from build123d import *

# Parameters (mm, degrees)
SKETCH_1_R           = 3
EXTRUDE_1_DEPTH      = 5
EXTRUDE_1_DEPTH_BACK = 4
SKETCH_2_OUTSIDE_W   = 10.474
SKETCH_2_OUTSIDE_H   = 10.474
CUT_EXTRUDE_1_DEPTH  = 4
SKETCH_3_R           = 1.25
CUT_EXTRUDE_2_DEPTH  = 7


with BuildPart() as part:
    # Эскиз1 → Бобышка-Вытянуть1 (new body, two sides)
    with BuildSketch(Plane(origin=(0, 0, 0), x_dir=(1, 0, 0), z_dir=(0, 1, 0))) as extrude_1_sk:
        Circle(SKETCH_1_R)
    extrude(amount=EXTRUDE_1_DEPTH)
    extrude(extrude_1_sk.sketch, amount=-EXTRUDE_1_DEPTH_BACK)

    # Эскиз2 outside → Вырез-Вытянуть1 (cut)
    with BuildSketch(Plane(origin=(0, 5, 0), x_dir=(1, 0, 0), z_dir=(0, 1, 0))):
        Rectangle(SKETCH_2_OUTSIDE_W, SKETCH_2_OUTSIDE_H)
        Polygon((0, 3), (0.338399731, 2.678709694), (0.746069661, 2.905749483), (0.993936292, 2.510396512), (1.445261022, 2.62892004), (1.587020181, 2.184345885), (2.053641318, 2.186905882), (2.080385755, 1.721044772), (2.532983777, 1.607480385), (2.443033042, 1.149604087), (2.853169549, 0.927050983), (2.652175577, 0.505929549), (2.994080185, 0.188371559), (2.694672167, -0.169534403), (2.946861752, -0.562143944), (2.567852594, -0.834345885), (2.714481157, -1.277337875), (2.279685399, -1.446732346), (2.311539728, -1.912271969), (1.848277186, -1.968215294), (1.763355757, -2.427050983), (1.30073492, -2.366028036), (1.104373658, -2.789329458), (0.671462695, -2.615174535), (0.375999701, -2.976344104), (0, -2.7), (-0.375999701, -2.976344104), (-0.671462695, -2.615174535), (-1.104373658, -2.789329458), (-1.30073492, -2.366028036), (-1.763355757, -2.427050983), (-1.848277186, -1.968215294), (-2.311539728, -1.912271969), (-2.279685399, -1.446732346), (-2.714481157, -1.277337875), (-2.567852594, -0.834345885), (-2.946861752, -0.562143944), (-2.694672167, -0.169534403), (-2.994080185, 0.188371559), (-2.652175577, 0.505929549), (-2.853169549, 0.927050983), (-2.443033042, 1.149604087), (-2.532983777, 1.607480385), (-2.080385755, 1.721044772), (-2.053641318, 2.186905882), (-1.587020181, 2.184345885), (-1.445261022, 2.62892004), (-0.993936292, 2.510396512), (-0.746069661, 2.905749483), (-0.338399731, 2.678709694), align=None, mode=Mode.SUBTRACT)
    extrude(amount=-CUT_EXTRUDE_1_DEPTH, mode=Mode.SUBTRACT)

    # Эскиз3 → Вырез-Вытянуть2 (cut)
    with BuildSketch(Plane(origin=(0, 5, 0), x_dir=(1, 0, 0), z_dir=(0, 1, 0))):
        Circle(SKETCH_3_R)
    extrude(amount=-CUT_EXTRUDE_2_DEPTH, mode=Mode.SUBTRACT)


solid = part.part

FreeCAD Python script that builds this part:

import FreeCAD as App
import Part
import Sketcher

doc = App.newDocument("Part")
body = doc.addObject("PartDesign::Body", "Body")

sketch1 = body.newObject("Sketcher::SketchObject", "Sketch")
sketch1.AttachmentSupport = (doc.getObject("XZ_Plane"), [""])
sketch1.MapMode = "FlatFace"
sketch1.addGeometry(Part.Circle(App.Vector(0, 0, 0), App.Vector(0, 0, 1), 3), False)
sketch1.addConstraint(Sketcher.Constraint("Coincident", 0, 3, -1, 1))
sketch1.addConstraint(Sketcher.Constraint("Diameter", 0, 6.0))
pad1 = body.newObject("PartDesign::Pad", "Pad")
pad1.Profile = sketch1
pad1.Type = "TwoLengths"
pad1.Length = 5
pad1.Length2 = 4
pad1.Reversed = True

sketch2 = body.newObject("Sketcher::SketchObject", "Sketch001")
sketch2.AttachmentSupport = (doc.getObject("XZ_Plane"), [""])
sketch2.MapMode = "FlatFace"
sketch2.AttachmentOffset = App.Placement(App.Vector(0, 0, -5), App.Rotation())
sketch2.addGeometry(Part.LineSegment(App.Vector(-5.24, -5.24, 0), App.Vector(-5.24, 5.24, 0)), False)
sketch2.addGeometry(Part.LineSegment(App.Vector(-5.24, 5.24, 0), App.Vector(5.24, 5.24, 0)), False)
sketch2.addGeometry(Part.LineSegment(App.Vector(5.24, 5.24, 0), App.Vector(5.24, -5.24, 0)), False)
sketch2.addGeometry(Part.LineSegment(App.Vector(5.24, -5.24, 0), App.Vector(-5.24, -5.24, 0)), False)
sketch2.addGeometry(Part.LineSegment(App.Vector(-0.34, -2.68, 0), App.Vector(0, -3, 0)), False)
sketch2.addGeometry(Part.LineSegment(App.Vector(0, -3, 0), App.Vector(0.34, -2.68, 0)), False)
sketch2.addGeometry(Part.LineSegment(App.Vector(0.34, -2.68, 0), App.Vector(0.75, -2.91, 0)), False)
sketch2.addGeometry(Part.LineSegment(App.Vector(0.75, -2.91, 0), App.Vector(0.99, -2.51, 0)), False)
sketch2.addGeometry(Part.LineSegment(App.Vector(0.99, -2.51, 0), App.Vector(1.45, -2.63, 0)), False)
sketch2.addGeometry(Part.LineSegment(App.Vector(1.45, -2.63, 0), App.Vector(1.59, -2.18, 0)), False)
sketch2.addGeometry(Part.LineSegment(App.Vector(1.59, -2.18, 0), App.Vector(2.05, -2.19, 0)), False)
sketch2.addGeometry(Part.LineSegment(App.Vector(2.05, -2.19, 0), App.Vector(2.08, -1.72, 0)), False)
sketch2.addGeometry(Part.LineSegment(App.Vector(2.08, -1.72, 0), App.Vector(2.53, -1.61, 0)), False)
sketch2.addGeometry(Part.LineSegment(App.Vector(2.53, -1.61, 0), App.Vector(2.44, -1.15, 0)), False)
sketch2.addGeometry(Part.LineSegment(App.Vector(2.44, -1.15, 0), App.Vector(2.85, -0.93, 0)), False)
sketch2.addGeometry(Part.LineSegment(App.Vector(2.85, -0.93, 0), App.Vector(2.65, -0.51, 0)), False)
sketch2.addGeometry(Part.LineSegment(App.Vector(2.65, -0.51, 0), App.Vector(2.99, -0.19, 0)), False)
sketch2.addGeometry(Part.LineSegment(App.Vector(2.99, -0.19, 0), App.Vector(2.69, 0.17, 0)), False)
sketch2.addGeometry(Part.LineSegment(App.Vector(2.69, 0.17, 0), App.Vector(2.95, 0.56, 0)), False)
sketch2.addGeometry(Part.LineSegment(App.Vector(2.95, 0.56, 0), App.Vector(2.57, 0.83, 0)), False)
sketch2.addGeometry(Part.LineSegment(App.Vector(2.57, 0.83, 0), App.Vector(2.71, 1.28, 0)), False)
sketch2.addGeometry(Part.LineSegment(App.Vector(2.71, 1.28, 0), App.Vector(2.28, 1.45, 0)), False)
sketch2.addGeometry(Part.LineSegment(App.Vector(2.28, 1.45, 0), App.Vector(2.31, 1.91, 0)), False)
sketch2.addGeometry(Part.LineSegment(App.Vector(2.31, 1.91, 0), App.Vector(1.85, 1.97, 0)), False)
sketch2.addGeometry(Part.LineSegment(App.Vector(1.85, 1.97, 0), App.Vector(1.76, 2.43, 0)), False)
sketch2.addGeometry(Part.LineSegment(App.Vector(1.76, 2.43, 0), App.Vector(1.3, 2.37, 0)), False)
sketch2.addGeometry(Part.LineSegment(App.Vector(1.3, 2.37, 0), App.Vector(1.1, 2.79, 0)), False)
sketch2.addGeometry(Part.LineSegment(App.Vector(1.1, 2.79, 0), App.Vector(0.67, 2.62, 0)), False)
sketch2.addGeometry(Part.LineSegment(App.Vector(0.67, 2.62, 0), App.Vector(0.38, 2.98, 0)), False)
sketch2.addGeometry(Part.LineSegment(App.Vector(0.38, 2.98, 0), App.Vector(0, 2.7, 0)), False)
sketch2.addGeometry(Part.LineSegment(App.Vector(0, 2.7, 0), App.Vector(-0.38, 2.98, 0)), False)
sketch2.addGeometry(Part.LineSegment(App.Vector(-0.38, 2.98, 0), App.Vector(-0.67, 2.62, 0)), False)
sketch2.addGeometry(Part.LineSegment(App.Vector(-0.67, 2.62, 0), App.Vector(-1.1, 2.79, 0)), False)
sketch2.addGeometry(Part.LineSegment(App.Vector(-1.1, 2.79, 0), App.Vector(-1.3, 2.37, 0)), False)
sketch2.addGeometry(Part.LineSegment(App.Vector(-1.3, 2.37, 0), App.Vector(-1.76, 2.43, 0)), False)
sketch2.addGeometry(Part.LineSegment(App.Vector(-1.76, 2.43, 0), App.Vector(-1.85, 1.97, 0)), False)
sketch2.addGeometry(Part.LineSegment(App.Vector(-1.85, 1.97, 0), App.Vector(-2.31, 1.91, 0)), False)
sketch2.addGeometry(Part.LineSegment(App.Vector(-2.31, 1.91, 0), App.Vector(-2.28, 1.45, 0)), False)
sketch2.addGeometry(Part.LineSegment(App.Vector(-2.28, 1.45, 0), App.Vector(-2.71, 1.28, 0)), False)
sketch2.addGeometry(Part.LineSegment(App.Vector(-2.71, 1.28, 0), App.Vector(-2.57, 0.83, 0)), False)
sketch2.addGeometry(Part.LineSegment(App.Vector(-2.57, 0.83, 0), App.Vector(-2.95, 0.56, 0)), False)
sketch2.addGeometry(Part.LineSegment(App.Vector(-2.95, 0.56, 0), App.Vector(-2.69, 0.17, 0)), False)
sketch2.addGeometry(Part.LineSegment(App.Vector(-2.69, 0.17, 0), App.Vector(-2.99, -0.19, 0)), False)
sketch2.addGeometry(Part.LineSegment(App.Vector(-2.99, -0.19, 0), App.Vector(-2.65, -0.51, 0)), False)
sketch2.addGeometry(Part.LineSegment(App.Vector(-2.65, -0.51, 0), App.Vector(-2.85, -0.93, 0)), False)
sketch2.addGeometry(Part.LineSegment(App.Vector(-2.85, -0.93, 0), App.Vector(-2.44, -1.15, 0)), False)
sketch2.addGeometry(Part.LineSegment(App.Vector(-2.44, -1.15, 0), App.Vector(-2.53, -1.61, 0)), False)
sketch2.addGeometry(Part.LineSegment(App.Vector(-2.53, -1.61, 0), App.Vector(-2.08, -1.72, 0)), False)
sketch2.addGeometry(Part.LineSegment(App.Vector(-2.08, -1.72, 0), App.Vector(-2.05, -2.19, 0)), False)
sketch2.addGeometry(Part.LineSegment(App.Vector(-2.05, -2.19, 0), App.Vector(-1.59, -2.18, 0)), False)
sketch2.addGeometry(Part.LineSegment(App.Vector(-1.59, -2.18, 0), App.Vector(-1.45, -2.63, 0)), False)
sketch2.addGeometry(Part.LineSegment(App.Vector(-1.45, -2.63, 0), App.Vector(-0.99, -2.51, 0)), False)
sketch2.addGeometry(Part.LineSegment(App.Vector(-0.99, -2.51, 0), App.Vector(-0.75, -2.91, 0)), False)
sketch2.addGeometry(Part.LineSegment(App.Vector(-0.75, -2.91, 0), App.Vector(-0.34, -2.68, 0)), False)
sketch2.addConstraint(Sketcher.Constraint("Coincident", 0, 2, 1, 1))
sketch2.addConstraint(Sketcher.Constraint("Coincident", 1, 2, 2, 1))
sketch2.addConstraint(Sketcher.Constraint("Coincident", 2, 2, 3, 1))
sketch2.addConstraint(Sketcher.Constraint("Coincident", 3, 2, 0, 1))
sketch2.addConstraint(Sketcher.Constraint("Coincident", 4, 2, 5, 1))
sketch2.addConstraint(Sketcher.Constraint("Coincident", 5, 2, 6, 1))
sketch2.addConstraint(Sketcher.Constraint("Coincident", 6, 2, 7, 1))
sketch2.addConstraint(Sketcher.Constraint("Coincident", 7, 2, 8, 1))
sketch2.addConstraint(Sketcher.Constraint("Coincident", 8, 2, 9, 1))
sketch2.addConstraint(Sketcher.Constraint("Coincident", 9, 2, 10, 1))
sketch2.addConstraint(Sketcher.Constraint("Coincident", 10, 2, 11, 1))
sketch2.addConstraint(Sketcher.Constraint("Coincident", 11, 2, 12, 1))
sketch2.addConstraint(Sketcher.Constraint("Coincident", 12, 2, 13, 1))
sketch2.addConstraint(Sketcher.Constraint("Coincident", 13, 2, 14, 1))
sketch2.addConstraint(Sketcher.Constraint("Coincident", 14, 2, 15, 1))
sketch2.addConstraint(Sketcher.Constraint("Coincident", 15, 2, 16, 1))
sketch2.addConstraint(Sketcher.Constraint("Coincident", 16, 2, 17, 1))
sketch2.addConstraint(Sketcher.Constraint("Coincident", 17, 2, 18, 1))
sketch2.addConstraint(Sketcher.Constraint("Coincident", 18, 2, 19, 1))
sketch2.addConstraint(Sketcher.Constraint("Coincident", 19, 2, 20, 1))
sketch2.addConstraint(Sketcher.Constraint("Coincident", 20, 2, 21, 1))
sketch2.addConstraint(Sketcher.Constraint("Coincident", 21, 2, 22, 1))
sketch2.addConstraint(Sketcher.Constraint("Coincident", 22, 2, 23, 1))
sketch2.addConstraint(Sketcher.Constraint("Coincident", 23, 2, 24, 1))
sketch2.addConstraint(Sketcher.Constraint("Coincident", 24, 2, 25, 1))
sketch2.addConstraint(Sketcher.Constraint("Coincident", 25, 2, 26, 1))
sketch2.addConstraint(Sketcher.Constraint("Coincident", 26, 2, 27, 1))
sketch2.addConstraint(Sketcher.Constraint("Coincident", 27, 2, 28, 1))
sketch2.addConstraint(Sketcher.Constraint("Coincident", 28, 2, 29, 1))
sketch2.addConstraint(Sketcher.Constraint("Coincident", 29, 2, 30, 1))
sketch2.addConstraint(Sketcher.Constraint("Coincident", 30, 2, 31, 1))
sketch2.addConstraint(Sketcher.Constraint("Coincident", 31, 2, 32, 1))
sketch2.addConstraint(Sketcher.Constraint("Coincident", 32, 2, 33, 1))
sketch2.addConstraint(Sketcher.Constraint("Coincident", 33, 2, 34, 1))
sketch2.addConstraint(Sketcher.Constraint("Coincident", 34, 2, 35, 1))
sketch2.addConstraint(Sketcher.Constraint("Coincident", 35, 2, 36, 1))
sketch2.addConstraint(Sketcher.Constraint("Coincident", 36, 2, 37, 1))
sketch2.addConstraint(Sketcher.Constraint("Coincident", 37, 2, 38, 1))
sketch2.addConstraint(Sketcher.Constraint("Coincident", 38, 2, 39, 1))
sketch2.addConstraint(Sketcher.Constraint("Coincident", 39, 2, 40, 1))
sketch2.addConstraint(Sketcher.Constraint("Coincident", 40, 2, 41, 1))
sketch2.addConstraint(Sketcher.Constraint("Coincident", 41, 2, 42, 1))
sketch2.addConstraint(Sketcher.Constraint("Coincident", 42, 2, 43, 1))
sketch2.addConstraint(Sketcher.Constraint("Coincident", 43, 2, 44, 1))
sketch2.addConstraint(Sketcher.Constraint("Coincident", 44, 2, 45, 1))
sketch2.addConstraint(Sketcher.Constraint("Coincident", 45, 2, 46, 1))
sketch2.addConstraint(Sketcher.Constraint("Coincident", 46, 2, 47, 1))
sketch2.addConstraint(Sketcher.Constraint("Coincident", 47, 2, 48, 1))
sketch2.addConstraint(Sketcher.Constraint("Coincident", 48, 2, 49, 1))
sketch2.addConstraint(Sketcher.Constraint("Coincident", 49, 2, 50, 1))
sketch2.addConstraint(Sketcher.Constraint("Coincident", 50, 2, 51, 1))
sketch2.addConstraint(Sketcher.Constraint("Coincident", 51, 2, 52, 1))
sketch2.addConstraint(Sketcher.Constraint("Coincident", 52, 2, 53, 1))
sketch2.addConstraint(Sketcher.Constraint("Coincident", 53, 2, 4, 1))
sketch2.addConstraint(Sketcher.Constraint("Vertical", 0))
sketch2.addConstraint(Sketcher.Constraint("Horizontal", 1))
sketch2.addConstraint(Sketcher.Constraint("Vertical", 2))
sketch2.addConstraint(Sketcher.Constraint("Horizontal", 3))
sketch2.addConstraint(Sketcher.Constraint("Symmetric", 0, 2, 2, 2, -1, 1))
sketch2.addConstraint(Sketcher.Constraint("Symmetric", 28, 2, 30, 2, -2))
sketch2.addConstraint(Sketcher.Constraint("Symmetric", 27, 2, 31, 2, -2))
sketch2.addConstraint(Sketcher.Constraint("Symmetric", 26, 2, 32, 2, -2))
sketch2.addConstraint(Sketcher.Constraint("Symmetric", 25, 2, 33, 2, -2))
sketch2.addConstraint(Sketcher.Constraint("Symmetric", 24, 2, 34, 2, -2))
sketch2.addConstraint(Sketcher.Constraint("Symmetric", 23, 2, 35, 2, -2))
sketch2.addConstraint(Sketcher.Constraint("Symmetric", 22, 2, 36, 2, -2))
sketch2.addConstraint(Sketcher.Constraint("Symmetric", 21, 2, 37, 2, -2))
sketch2.addConstraint(Sketcher.Constraint("Symmetric", 20, 2, 38, 2, -2))
sketch2.addConstraint(Sketcher.Constraint("Symmetric", 19, 2, 39, 2, -2))
sketch2.addConstraint(Sketcher.Constraint("Symmetric", 18, 2, 40, 2, -2))
sketch2.addConstraint(Sketcher.Constraint("Symmetric", 17, 2, 41, 2, -2))
sketch2.addConstraint(Sketcher.Constraint("Symmetric", 16, 2, 42, 2, -2))
sketch2.addConstraint(Sketcher.Constraint("Symmetric", 15, 2, 43, 2, -2))
sketch2.addConstraint(Sketcher.Constraint("Symmetric", 14, 2, 44, 2, -2))
sketch2.addConstraint(Sketcher.Constraint("Symmetric", 13, 2, 45, 2, -2))
sketch2.addConstraint(Sketcher.Constraint("Symmetric", 12, 2, 46, 2, -2))
sketch2.addConstraint(Sketcher.Constraint("Symmetric", 11, 2, 47, 2, -2))
sketch2.addConstraint(Sketcher.Constraint("Symmetric", 10, 2, 48, 2, -2))
sketch2.addConstraint(Sketcher.Constraint("Symmetric", 9, 2, 49, 2, -2))
sketch2.addConstraint(Sketcher.Constraint("Symmetric", 8, 2, 50, 2, -2))
sketch2.addConstraint(Sketcher.Constraint("Symmetric", 7, 2, 51, 2, -2))
sketch2.addConstraint(Sketcher.Constraint("Symmetric", 6, 2, 52, 2, -2))
sketch2.addConstraint(Sketcher.Constraint("Symmetric", 5, 2, 53, 2, -2))
sketch2.addConstraint(Sketcher.Constraint("PointOnObject", 4, 2, -2))
sketch2.addConstraint(Sketcher.Constraint("PointOnObject", 29, 2, -2))
sketch2.addConstraint(Sketcher.Constraint("Equal", 3, 0))
sketch2.addConstraint(Sketcher.Constraint("Equal", 5, 6))
sketch2.addConstraint(Sketcher.Constraint("Equal", 6, 7))
sketch2.addConstraint(Sketcher.Constraint("Equal", 7, 8))
sketch2.addConstraint(Sketcher.Constraint("Equal", 8, 9))
sketch2.addConstraint(Sketcher.Constraint("Equal", 9, 10))
sketch2.addConstraint(Sketcher.Constraint("Equal", 10, 11))
sketch2.addConstraint(Sketcher.Constraint("Equal", 11, 12))
sketch2.addConstraint(Sketcher.Constraint("Equal", 12, 13))
sketch2.addConstraint(Sketcher.Constraint("Equal", 13, 14))
sketch2.addConstraint(Sketcher.Constraint("Equal", 14, 15))
sketch2.addConstraint(Sketcher.Constraint("Equal", 15, 16))
sketch2.addConstraint(Sketcher.Constraint("Equal", 16, 17))
sketch2.addConstraint(Sketcher.Constraint("Equal", 17, 18))
sketch2.addConstraint(Sketcher.Constraint("Equal", 18, 19))
sketch2.addConstraint(Sketcher.Constraint("Equal", 19, 20))
sketch2.addConstraint(Sketcher.Constraint("Equal", 20, 21))
sketch2.addConstraint(Sketcher.Constraint("Equal", 21, 22))
sketch2.addConstraint(Sketcher.Constraint("Equal", 22, 23))
sketch2.addConstraint(Sketcher.Constraint("Equal", 23, 24))
sketch2.addConstraint(Sketcher.Constraint("Equal", 24, 25))
sketch2.addConstraint(Sketcher.Constraint("Equal", 25, 26))
sketch2.addConstraint(Sketcher.Constraint("Equal", 26, 27))
sketch2.addConstraint(Sketcher.Constraint("Equal", 27, 28))
sketch2.addConstraint(Sketcher.Constraint("Equal", 28, 29))
sketch2.addConstraint(Sketcher.Constraint("DistanceY", 4, 2, -1, 1, 3.0))
sketch2.addConstraint(Sketcher.Constraint("DistanceY", -1, 1, 29, 2, 2.7))
sketch2.addConstraint(Sketcher.Constraint("DistanceX", 1, 1, 1, 2, 10.474))
sketch2.addConstraint(Sketcher.Constraint("DistanceX", -1, 1, 28, 2, 0.376))
sketch2.addConstraint(Sketcher.Constraint("DistanceX", -1, 1, 5, 2, 0.3384))
sketch2.addConstraint(Sketcher.Constraint("DistanceY", 9, 2, 11, 2, 0.463301))
sketch2.addConstraint(Sketcher.Constraint("DistanceX", 11, 2, 12, 2, 0.452598))
sketch2.addConstraint(Sketcher.Constraint("DistanceY", 10, 2, 13, 2, 1.037302))
sketch2.addConstraint(Sketcher.Constraint("DistanceY", 18, 2, 19, 2, 0.272202))
sketch2.addConstraint(Sketcher.Constraint("DistanceX", 20, 2, 16, 2, 0.279599))
sketch2.addConstraint(Sketcher.Constraint("DistanceY", 25, 2, 26, 2, 0.423301))
sketch2.addConstraint(Sketcher.Constraint("Distance", 4, 0.466628))
sketch2.addConstraint(Sketcher.Constraint("DistanceX", -1, 1, 6, 2, 0.74607))
sketch2.addConstraint(Sketcher.Constraint("DistanceX", -1, 1, 8, 2, 1.445261))
sketch2.addConstraint(Sketcher.Constraint("DistanceY", 8, 2, -1, 1, 2.62892))
sketch2.addConstraint(Sketcher.Constraint("DistanceX", -1, 1, 9, 2, 1.58702))
sketch2.addConstraint(Sketcher.Constraint("DistanceX", -1, 1, 14, 2, 2.85317))
sketch2.addConstraint(Sketcher.Constraint("DistanceY", 14, 2, -1, 1, 0.927051))
sketch2.addConstraint(Sketcher.Constraint("DistanceY", 15, 2, -1, 1, 0.50593))
sketch2.addConstraint(Sketcher.Constraint("DistanceX", -1, 1, 16, 2, 2.99408))
sketch2.addConstraint(Sketcher.Constraint("DistanceX", -1, 1, 18, 2, 2.946862))
sketch2.addConstraint(Sketcher.Constraint("DistanceX", -1, 1, 22, 2, 2.31154))
sketch2.addConstraint(Sketcher.Constraint("DistanceY", -1, 1, 22, 2, 1.912272))
sketch2.addConstraint(Sketcher.Constraint("DistanceY", -1, 1, 24, 2, 2.427051))
sketch2.addConstraint(Sketcher.Constraint("DistanceY", -1, 1, 25, 2, 2.366028))
sketch2.addConstraint(Sketcher.Constraint("DistanceX", 17, 2, 16, 2, 0.299408))
sketch2.addConstraint(Sketcher.Constraint("DistanceX", 23, 2, 21, 2, 0.431408))
pocket1 = body.newObject("PartDesign::Pocket", "Pocket")
pocket1.Profile = sketch2
pocket1.Length = 4
pocket1.Reversed = True

sketch3 = body.newObject("Sketcher::SketchObject", "Sketch002")
sketch3.AttachmentSupport = (doc.getObject("XZ_Plane"), [""])
sketch3.MapMode = "FlatFace"
sketch3.AttachmentOffset = App.Placement(App.Vector(0, 0, -5), App.Rotation())
sketch3.addGeometry(Part.Circle(App.Vector(0, 0, 0), App.Vector(0, 0, 1), 1.2), False)
sketch3.addConstraint(Sketcher.Constraint("Coincident", 0, 3, -1, 1))
sketch3.addConstraint(Sketcher.Constraint("Diameter", 0, 2.5))
pocket2 = body.newObject("PartDesign::Pocket", "Pocket001")
pocket2.Profile = sketch3
pocket2.Length = 7
pocket2.Reversed = True

doc.recompute()
